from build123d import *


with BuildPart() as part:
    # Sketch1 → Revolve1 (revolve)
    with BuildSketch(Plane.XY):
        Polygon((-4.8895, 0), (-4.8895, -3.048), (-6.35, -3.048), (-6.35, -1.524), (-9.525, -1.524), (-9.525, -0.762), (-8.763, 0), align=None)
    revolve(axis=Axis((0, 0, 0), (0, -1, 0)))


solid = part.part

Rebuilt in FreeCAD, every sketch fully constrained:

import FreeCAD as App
import Part
import Sketcher

V = App.Vector
Q = App.Units.Quantity

doc = App.newDocument("Part")
body = doc.addObject("PartDesign::Body", "Body")

# Sketch on XY plane
sketch1 = doc.addObject("Sketcher::SketchObject", "Sketch")
body.addObject(sketch1)
sketch1.AttachmentSupport = (doc.XY_Plane, [""])
sketch1.MapMode = "FlatFace"
sketch1.addGeometry([
    Part.LineSegment(V(-4.9, -3, 0), V(-4.9, 0, 0)),  # 0
    Part.LineSegment(V(-4.9, 0, 0), V(-8.8, 0, 0)),  # 1
    Part.LineSegment(V(-8.8, 0, 0), V(-9.5, -0.8, 0)),  # 2
    Part.LineSegment(V(-9.5, -0.8, 0), V(-9.5, -1.5, 0)),  # 3
    Part.LineSegment(V(-9.5, -1.5, 0), V(-6.3, -1.5, 0)),  # 4
    Part.LineSegment(V(-6.3, -1.5, 0), V(-6.3, -3, 0)),  # 5
    Part.LineSegment(V(-6.3, -3, 0), V(-4.9, -3, 0)),  # 6
], False)
sketch1.addConstraint([
    Sketcher.Constraint("Coincident", 0, 2, 1, 1),
    Sketcher.Constraint("Coincident", 1, 2, 2, 1),
    Sketcher.Constraint("Coincident", 2, 2, 3, 1),
    Sketcher.Constraint("Coincident", 3, 2, 4, 1),
    Sketcher.Constraint("Coincident", 4, 2, 5, 1),
    Sketcher.Constraint("Coincident", 5, 2, 6, 1),
    Sketcher.Constraint("Coincident", 6, 2, 0, 1),
    Sketcher.Constraint("Vertical", 0),
    Sketcher.Constraint("Horizontal", 1),
    Sketcher.Constraint("Vertical", 3),
    Sketcher.Constraint("Horizontal", 4),
    Sketcher.Constraint("Vertical", 5),
    Sketcher.Constraint("Horizontal", 6),
    Sketcher.Constraint("PointOnObject", 0, 2, -1),
    Sketcher.Constraint("Angle", 2, Q("-135 deg")),
    Sketcher.Constraint("DistanceY", 0, 1, 0, 2, Q("0.12 in")),
    Sketcher.Constraint("DistanceY", 3, 2, 3, 1, Q("0.03 in")),
    Sketcher.Constraint("DistanceY", 5, 2, 5, 1, Q("0.06 in")),
    Sketcher.Constraint("DistanceX", 4, 1, 4, 2, Q("0.125 in")),
    Sketcher.Constraint("DistanceX", 4, 2, -1, 1, Q("0.25 in")),
    Sketcher.Constraint("DistanceX", 1, 2, 1, 1, Q("0.1525 in")),
])
revolution = doc.addObject("PartDesign::Revolution", "Revolution")
body.addObject(revolution)
revolution.Profile = sketch1
revolution.ReferenceAxis = (sketch1, ["V_Axis"])
revolution.Angle = 360

doc.recompute()
